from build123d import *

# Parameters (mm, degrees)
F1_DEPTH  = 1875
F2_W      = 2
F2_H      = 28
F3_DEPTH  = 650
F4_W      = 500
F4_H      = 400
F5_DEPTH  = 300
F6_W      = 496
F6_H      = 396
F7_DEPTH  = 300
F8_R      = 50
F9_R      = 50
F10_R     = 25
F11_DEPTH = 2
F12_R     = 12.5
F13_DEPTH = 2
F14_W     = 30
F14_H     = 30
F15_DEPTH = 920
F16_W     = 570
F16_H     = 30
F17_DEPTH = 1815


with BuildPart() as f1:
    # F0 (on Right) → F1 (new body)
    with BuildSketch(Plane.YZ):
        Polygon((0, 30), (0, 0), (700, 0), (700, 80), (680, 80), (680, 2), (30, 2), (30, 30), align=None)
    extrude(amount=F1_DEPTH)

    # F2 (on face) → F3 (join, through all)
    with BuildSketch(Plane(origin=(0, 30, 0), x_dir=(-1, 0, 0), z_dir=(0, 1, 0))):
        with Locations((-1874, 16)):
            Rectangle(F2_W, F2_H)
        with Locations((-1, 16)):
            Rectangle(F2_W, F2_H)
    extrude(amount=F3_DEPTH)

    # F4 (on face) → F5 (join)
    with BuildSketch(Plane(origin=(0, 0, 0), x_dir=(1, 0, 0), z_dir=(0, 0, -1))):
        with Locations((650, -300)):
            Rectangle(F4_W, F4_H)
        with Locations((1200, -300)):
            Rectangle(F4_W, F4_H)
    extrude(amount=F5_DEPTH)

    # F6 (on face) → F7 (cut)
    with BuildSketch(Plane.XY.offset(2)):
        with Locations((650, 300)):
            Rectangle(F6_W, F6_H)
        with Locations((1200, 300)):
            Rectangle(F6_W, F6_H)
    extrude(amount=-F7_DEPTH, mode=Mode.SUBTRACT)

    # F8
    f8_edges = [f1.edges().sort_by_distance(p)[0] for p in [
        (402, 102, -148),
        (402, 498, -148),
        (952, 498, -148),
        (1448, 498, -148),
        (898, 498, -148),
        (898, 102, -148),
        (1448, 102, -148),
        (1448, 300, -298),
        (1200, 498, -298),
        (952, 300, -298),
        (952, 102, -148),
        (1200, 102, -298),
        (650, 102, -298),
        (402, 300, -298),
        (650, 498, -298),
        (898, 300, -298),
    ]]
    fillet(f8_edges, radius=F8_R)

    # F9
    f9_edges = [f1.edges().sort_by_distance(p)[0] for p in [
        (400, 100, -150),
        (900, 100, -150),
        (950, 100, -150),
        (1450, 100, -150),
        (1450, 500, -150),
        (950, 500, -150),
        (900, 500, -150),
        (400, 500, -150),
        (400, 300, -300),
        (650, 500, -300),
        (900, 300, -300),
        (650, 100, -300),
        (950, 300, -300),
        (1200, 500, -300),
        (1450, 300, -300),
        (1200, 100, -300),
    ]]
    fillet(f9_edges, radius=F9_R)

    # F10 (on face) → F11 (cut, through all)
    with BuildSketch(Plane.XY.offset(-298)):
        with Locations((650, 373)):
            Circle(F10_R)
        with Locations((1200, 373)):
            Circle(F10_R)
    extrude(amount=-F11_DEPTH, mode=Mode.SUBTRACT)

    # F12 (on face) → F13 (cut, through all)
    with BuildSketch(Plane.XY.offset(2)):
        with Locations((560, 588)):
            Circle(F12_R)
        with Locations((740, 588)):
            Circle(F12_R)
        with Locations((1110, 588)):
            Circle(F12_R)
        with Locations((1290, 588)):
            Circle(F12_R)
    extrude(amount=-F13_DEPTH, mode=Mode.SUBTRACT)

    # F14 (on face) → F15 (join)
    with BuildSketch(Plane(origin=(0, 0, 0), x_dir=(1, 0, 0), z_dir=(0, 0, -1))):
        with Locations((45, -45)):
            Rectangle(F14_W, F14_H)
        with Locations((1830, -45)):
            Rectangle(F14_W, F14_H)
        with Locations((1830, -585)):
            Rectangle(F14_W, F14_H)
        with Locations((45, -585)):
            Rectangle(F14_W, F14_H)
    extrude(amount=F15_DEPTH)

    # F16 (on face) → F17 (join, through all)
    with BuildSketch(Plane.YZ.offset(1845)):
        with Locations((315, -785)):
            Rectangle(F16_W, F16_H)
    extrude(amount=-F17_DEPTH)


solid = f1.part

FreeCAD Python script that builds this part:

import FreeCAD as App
import Part
import Sketcher

V = App.Vector


def edges_at(feature, points):
    """Names of the edges that pass closest to the given points."""
    edges = feature.Shape.Edges
    near = lambda p: min(range(len(edges)), key=lambda i: edges[i].distToShape(Part.Vertex(*p))[0])
    return sorted({f"Edge{near(p) + 1}" for p in points})

doc = App.newDocument("Part")
body = doc.addObject("PartDesign::Body", "Body")

sketch1 = body.newObject("Sketcher::SketchObject", "Sketch")
sketch1.AttachmentSupport = (doc.getObject("YZ_Plane"), [""])
sketch1.MapMode = "FlatFace"
sketch1.addGeometry([
    Part.LineSegment(V(0, 30, 0), V(0, 0, 0)),
    Part.LineSegment(V(0, 0, 0), V(700, 0, 0)),
    Part.LineSegment(V(700, 0, 0), V(700, 80, 0)),
    Part.LineSegment(V(700, 80, 0), V(680, 80, 0)),
    Part.LineSegment(V(680, 80, 0), V(680, 2, 0)),
    Part.LineSegment(V(680, 2, 0), V(30, 2, 0)),
    Part.LineSegment(V(30, 2, 0), V(30, 30, 0)),
    Part.LineSegment(V(30, 30, 0), V(0, 30, 0)),
], False)
sketch1.addConstraint([
    Sketcher.Constraint("Coincident", 0, 2, 1, 1),
    Sketcher.Constraint("Coincident", 1, 2, 2, 1),
    Sketcher.Constraint("Coincident", 2, 2, 3, 1),
    Sketcher.Constraint("Coincident", 3, 2, 4, 1),
    Sketcher.Constraint("Coincident", 4, 2, 5, 1),
    Sketcher.Constraint("Coincident", 5, 2, 6, 1),
    Sketcher.Constraint("Coincident", 6, 2, 7, 1),
    Sketcher.Constraint("Coincident", 7, 2, 0, 1),
    Sketcher.Constraint("Vertical", 0),
    Sketcher.Constraint("Horizontal", 1),
    Sketcher.Constraint("Vertical", 2),
    Sketcher.Constraint("Horizontal", 3),
    Sketcher.Constraint("Vertical", 4),
    Sketcher.Constraint("Horizontal", 5),
    Sketcher.Constraint("Vertical", 6),
    Sketcher.Constraint("Horizontal", 7),
    Sketcher.Constraint("Coincident", 0, 2, -1, 1),
    Sketcher.Constraint("Equal", 7, 0),
    Sketcher.Constraint("DistanceX", 1, 1, 1, 2, 700.0),
    Sketcher.Constraint("DistanceX", 3, 2, 3, 1, 20.0),
    Sketcher.Constraint("DistanceX", 5, 2, 5, 1, 650.0),
    Sketcher.Constraint("DistanceY", 2, 1, 2, 2, 80.0),
    Sketcher.Constraint("DistanceY", 4, 2, 4, 1, 78.0),
])
pad1 = body.newObject("PartDesign::Pad", "Pad")
pad1.Profile = sketch1
pad1.Length = 1875

sketch2 = body.newObject("Sketcher::SketchObject", "Sketch001")
sketch2.AttachmentSupport = (doc.getObject("XZ_Plane"), [""])
sketch2.MapMode = "FlatFace"
sketch2.AttachmentOffset = App.Placement(V(0, 0, -30), App.Rotation())
sketch2.addGeometry([
    Part.LineSegment(V(1875, 30, 0), V(1875, 2, 0)),
    Part.LineSegment(V(1875, 2, 0), V(1873, 2, 0)),
    Part.LineSegment(V(1873, 2, 0), V(1873, 30, 0)),
    Part.LineSegment(V(1873, 30, 0), V(1875, 30, 0)),
    Part.LineSegment(V(2, 30, 0), V(2, 2, 0)),
    Part.LineSegment(V(2, 2, 0), V(0, 2, 0)),
    Part.LineSegment(V(0, 2, 0), V(0, 30, 0)),
    Part.LineSegment(V(0, 30, 0), V(2, 30, 0)),
], False)
sketch2.addConstraint([
    Sketcher.Constraint("Coincident", 0, 2, 1, 1),
    Sketcher.Constraint("Coincident", 1, 2, 2, 1),
    Sketcher.Constraint("Coincident", 2, 2, 3, 1),
    Sketcher.Constraint("Coincident", 3, 2, 0, 1),
    Sketcher.Constraint("Coincident", 4, 2, 5, 1),
    Sketcher.Constraint("Coincident", 5, 2, 6, 1),
    Sketcher.Constraint("Coincident", 6, 2, 7, 1),
    Sketcher.Constraint("Coincident", 7, 2, 4, 1),
    Sketcher.Constraint("Vertical", 0),
    Sketcher.Constraint("Horizontal", 1),
    Sketcher.Constraint("Vertical", 2),
    Sketcher.Constraint("Horizontal", 3),
    Sketcher.Constraint("Vertical", 4),
    Sketcher.Constraint("Horizontal", 5),
    Sketcher.Constraint("Vertical", 6),
    Sketcher.Constraint("Horizontal", 7),
    Sketcher.Constraint("PointOnObject", 5, 2, -2),
    Sketcher.Constraint("Horizontal", 1, 2, 4, 2),
    Sketcher.Constraint("Horizontal", 3, 2, 6, 2),
    Sketcher.Constraint("Equal", 3, 5),
    Sketcher.Constraint("DistanceX", 1, 2, 1, 1, 2.0),
    Sketcher.Constraint("DistanceY", 0, 2, 0, 1, 28.0),
    Sketcher.Constraint("DistanceX", -1, 1, 0, 2, 1875.0),
    Sketcher.Constraint("DistanceY", -1, 1, 0, 2, 2.0),
])
pad2 = body.newObject("PartDesign::Pad", "Pad001")
pad2.Profile = sketch2
pad2.Type = "UpToLast"
pad2.Reversed = True

sketch3 = body.newObject("Sketcher::SketchObject", "Sketch002")
sketch3.AttachmentSupport = (doc.getObject("XY_Plane"), [""])
sketch3.MapMode = "FlatFace"
sketch3.addGeometry([
    Part.LineSegment(V(400, 100, 0), V(400, 500, 0)),
    Part.LineSegment(V(400, 500, 0), V(900, 500, 0)),
    Part.LineSegment(V(900, 500, 0), V(900, 100, 0)),
    Part.LineSegment(V(900, 100, 0), V(400, 100, 0)),
    Part.LineSegment(V(950, 100, 0), V(950, 500, 0)),
    Part.LineSegment(V(950, 500, 0), V(1450, 500, 0)),
    Part.LineSegment(V(1450, 500, 0), V(1450, 100, 0)),
    Part.LineSegment(V(1450, 100, 0), V(950, 100, 0)),
], False)
sketch3.addConstraint([
    Sketcher.Constraint("Coincident", 0, 2, 1, 1),
    Sketcher.Constraint("Coincident", 1, 2, 2, 1),
    Sketcher.Constraint("Coincident", 2, 2, 3, 1),
    Sketcher.Constraint("Coincident", 3, 2, 0, 1),
    Sketcher.Constraint("Coincident", 4, 2, 5, 1),
    Sketcher.Constraint("Coincident", 5, 2, 6, 1),
    Sketcher.Constraint("Coincident", 6, 2, 7, 1),
    Sketcher.Constraint("Coincident", 7, 2, 4, 1),
    Sketcher.Constraint("Vertical", 0),
    Sketcher.Constraint("Horizontal", 1),
    Sketcher.Constraint("Vertical", 2),
    Sketcher.Constraint("Horizontal", 3),
    Sketcher.Constraint("Vertical", 4),
    Sketcher.Constraint("Horizontal", 5),
    Sketcher.Constraint("Vertical", 6),
    Sketcher.Constraint("Horizontal", 7),
    Sketcher.Constraint("Horizontal", 1, 2, 4, 2),
    Sketcher.Constraint("Horizontal", 3, 2, 6, 2),
    Sketcher.Constraint("Equal", 3, 5),
    Sketcher.Constraint("DistanceX", 1, 1, 1, 2, 500.0),
    Sketcher.Constraint("DistanceY", 0, 1, 0, 2, 400.0),
    Sketcher.Constraint("DistanceX", -1, 1, 0, 2, 400.0),
    Sketcher.Constraint("DistanceY", -1, 1, 0, 2, 500.0),
    Sketcher.Constraint("DistanceX", -1, 1, 4, 2, 950.0),
])
pad3 = body.newObject("PartDesign::Pad", "Pad002")
pad3.Profile = sketch3
pad3.Length = 300
pad3.Reversed = True

sketch4 = body.newObject("Sketcher::SketchObject", "Sketch003")
sketch4.AttachmentSupport = (doc.getObject("XY_Plane"), [""])
sketch4.MapMode = "FlatFace"
sketch4.AttachmentOffset = App.Placement(V(0, 0, 2), App.Rotation())
sketch4.addGeometry([
    Part.LineSegment(V(402, 498, 0), V(402, 102, 0)),
    Part.LineSegment(V(402, 102, 0), V(898, 102, 0)),
    Part.LineSegment(V(898, 102, 0), V(898, 498, 0)),
    Part.LineSegment(V(898, 498, 0), V(402, 498, 0)),
    Part.LineSegment(V(952, 498, 0), V(952, 102, 0)),
    Part.LineSegment(V(952, 102, 0), V(1448, 102, 0)),
    Part.LineSegment(V(1448, 102, 0), V(1448, 498, 0)),
    Part.LineSegment(V(1448, 498, 0), V(952, 498, 0)),
], False)
sketch4.addConstraint([
    Sketcher.Constraint("Coincident", 0, 2, 1, 1),
    Sketcher.Constraint("Coincident", 1, 2, 2, 1),
    Sketcher.Constraint("Coincident", 2, 2, 3, 1),
    Sketcher.Constraint("Coincident", 3, 2, 0, 1),
    Sketcher.Constraint("Coincident", 4, 2, 5, 1),
    Sketcher.Constraint("Coincident", 5, 2, 6, 1),
    Sketcher.Constraint("Coincident", 6, 2, 7, 1),
    Sketcher.Constraint("Coincident", 7, 2, 4, 1),
    Sketcher.Constraint("Vertical", 0),
    Sketcher.Constraint("Horizontal", 1),
    Sketcher.Constraint("Vertical", 2),
    Sketcher.Constraint("Horizontal", 3),
    Sketcher.Constraint("Vertical", 4),
    Sketcher.Constraint("Horizontal", 5),
    Sketcher.Constraint("Vertical", 6),
    Sketcher.Constraint("Horizontal", 7),
    Sketcher.Constraint("Horizontal", 1, 2, 4, 2),
    Sketcher.Constraint("Horizontal", 3, 2, 6, 2),
    Sketcher.Constraint("Equal", 3, 5),
    Sketcher.Constraint("DistanceX", 1, 1, 1, 2, 496.0),
    Sketcher.Constraint("DistanceY", 0, 2, 0, 1, 396.0),
    Sketcher.Constraint("DistanceX", -1, 1, 0, 2, 402.0),
    Sketcher.Constraint("DistanceY", -1, 1, 0, 2, 102.0),
    Sketcher.Constraint("DistanceX", -1, 1, 4, 2, 952.0),
])
pocket1 = body.newObject("PartDesign::Pocket", "Pocket")
pocket1.Profile = sketch4
pocket1.Length = 300
doc.recompute()

fillet = body.newObject("PartDesign::Fillet", "Fillet")
fillet.Base = (pocket1, edges_at(pocket1, [
    (402, 102, -148),
    (402, 498, -148),
    (952, 498, -148),
    (1448, 498, -148),
    (898, 498, -148),
    (898, 102, -148),
    (1448, 102, -148),
    (1448, 300, -298),
    (1200, 498, -298),
    (952, 300, -298),
    (952, 102, -148),
    (1200, 102, -298),
    (650, 102, -298),
    (402, 300, -298),
    (650, 498, -298),
    (898, 300, -298),
]))
fillet.Radius = 50
doc.recompute()

fillet2 = body.newObject("PartDesign::Fillet", "Fillet001")
fillet2.Base = (fillet, edges_at(fillet, [
    (400, 100, -150),
    (900, 100, -150),
    (950, 100, -150),
    (1450, 100, -150),
    (1450, 500, -150),
    (950, 500, -150),
    (900, 500, -150),
    (400, 500, -150),
    (400, 300, -300),
    (650, 500, -300),
    (900, 300, -300),
    (650, 100, -300),
    (950, 300, -300),
    (1200, 500, -300),
    (1450, 300, -300),
    (1200, 100, -300),
]))
fillet2.Radius = 50

sketch5 = body.newObject("Sketcher::SketchObject", "Sketch004")
sketch5.AttachmentSupport = (doc.getObject("XY_Plane"), [""])
sketch5.MapMode = "FlatFace"
sketch5.AttachmentOffset = App.Placement(V(0, 0, -298), App.Rotation())
sketch5.addGeometry([
    Part.Circle(V(650, 373, 0), V(0, 0, 1), 25),
    Part.Circle(V(1200, 373, 0), V(0, 0, 1), 25),
], False)
sketch5.addConstraint([
    Sketcher.Constraint("Equal", 0, 1),
    Sketcher.Constraint("Horizontal", 0, 3, 1, 3),
    Sketcher.Constraint("Diameter", 0, 50.0),
    Sketcher.Constraint("DistanceX", -1, 1, 0, 3, 650.0),
    Sketcher.Constraint("DistanceY", -1, 1, 0, 3, 373.0),
    Sketcher.Constraint("DistanceX", -1, 1, 1, 3, 1200.0),
])
pocket2 = body.newObject("PartDesign::Pocket", "Pocket001")
pocket2.Profile = sketch5
pocket2.Type = "ThroughAll"

sketch6 = body.newObject("Sketcher::SketchObject", "Sketch005")
sketch6.AttachmentSupport = (doc.getObject("XY_Plane"), [""])
sketch6.MapMode = "FlatFace"
sketch6.AttachmentOffset = App.Placement(V(0, 0, 2), App.Rotation())
sketch6.addGeometry([
    Part.Circle(V(560, 588, 0), V(0, 0, 1), 12.5),
    Part.Circle(V(740, 588, 0), V(0, 0, 1), 12.5),
    Part.Circle(V(1110, 588, 0), V(0, 0, 1), 12.5),
    Part.Circle(V(1290, 588, 0), V(0, 0, 1), 12.5),
], False)
sketch6.addConstraint([
    Sketcher.Constraint("Equal", 0, 1),
    Sketcher.Constraint("Equal", 1, 2),
    Sketcher.Constraint("Equal", 2, 3),
    Sketcher.Constraint("Horizontal", 0, 3, 1, 3),
    Sketcher.Constraint("Horizontal", 1, 3, 2, 3),
    Sketcher.Constraint("Horizontal", 2, 3, 3, 3),
    Sketcher.Constraint("Diameter", 0, 25.0),
    Sketcher.Constraint("DistanceX", -1, 1, 0, 3, 560.0),
    Sketcher.Constraint("DistanceY", -1, 1, 0, 3, 588.0),
    Sketcher.Constraint("DistanceX", -1, 1, 1, 3, 740.0),
    Sketcher.Constraint("DistanceX", -1, 1, 2, 3, 1110.0),
    Sketcher.Constraint("DistanceX", -1, 1, 3, 3, 1290.0),
])
pocket3 = body.newObject("PartDesign::Pocket", "Pocket002")
pocket3.Profile = sketch6
pocket3.Type = "ThroughAll"

sketch7 = body.newObject("Sketcher::SketchObject", "Sketch006")
sketch7.AttachmentSupport = (doc.getObject("XY_Plane"), [""])
sketch7.MapMode = "FlatFace"
sketch7.addGeometry([
    Part.LineSegment(V(30, 30, 0), V(30, 60, 0)),
    Part.LineSegment(V(30, 60, 0), V(60, 60, 0)),
    Part.LineSegment(V(60, 60, 0), V(60, 30, 0)),
    Part.LineSegment(V(60, 30, 0), V(30, 30, 0)),
    Part.LineSegment(V(1815, 30, 0), V(1815, 60, 0)),
    Part.LineSegment(V(1815, 60, 0), V(1845, 60, 0)),
    Part.LineSegment(V(1845, 60, 0), V(1845, 30, 0)),
    Part.LineSegment(V(1845, 30, 0), V(1815, 30, 0)),
    Part.LineSegment(V(1815, 570, 0), V(1815, 600, 0)),
    Part.LineSegment(V(1815, 600, 0), V(1845, 600, 0)),
    Part.LineSegment(V(1845, 600, 0), V(1845, 570, 0)),
    Part.LineSegment(V(1845, 570, 0), V(1815, 570, 0)),
    Part.LineSegment(V(30, 570, 0), V(30, 600, 0)),
    Part.LineSegment(V(30, 600, 0), V(60, 600, 0)),
    Part.LineSegment(V(60, 600, 0), V(60, 570, 0)),
    Part.LineSegment(V(60, 570, 0), V(30, 570, 0)),
], False)
sketch7.addConstraint([
    Sketcher.Constraint("Coincident", 0, 2, 1, 1),
    Sketcher.Constraint("Coincident", 1, 2, 2, 1),
    Sketcher.Constraint("Coincident", 2, 2, 3, 1),
    Sketcher.Constraint("Coincident", 3, 2, 0, 1),
    Sketcher.Constraint("Coincident", 4, 2, 5, 1),
    Sketcher.Constraint("Coincident", 5, 2, 6, 1),
    Sketcher.Constraint("Coincident", 6, 2, 7, 1),
    Sketcher.Constraint("Coincident", 7, 2, 4, 1),
    Sketcher.Constraint("Coincident", 8, 2, 9, 1),
    Sketcher.Constraint("Coincident", 9, 2, 10, 1),
    Sketcher.Constraint("Coincident", 10, 2, 11, 1),
    Sketcher.Constraint("Coincident", 11, 2, 8, 1),
    Sketcher.Constraint("Coincident", 12, 2, 13, 1),
    Sketcher.Constraint("Coincident", 13, 2, 14, 1),
    Sketcher.Constraint("Coincident", 14, 2, 15, 1),
    Sketcher.Constraint("Coincident", 15, 2, 12, 1),
    Sketcher.Constraint("Vertical", 0),
    Sketcher.Constraint("Horizontal", 1),
    Sketcher.Constraint("Vertical", 2),
    Sketcher.Constraint("Horizontal", 3),
    Sketcher.Constraint("Vertical", 4),
    Sketcher.Constraint("Horizontal", 5),
    Sketcher.Constraint("Vertical", 6),
    Sketcher.Constraint("Horizontal", 7),
    Sketcher.Constraint("Vertical", 8),
    Sketcher.Constraint("Horizontal", 9),
    Sketcher.Constraint("Vertical", 10),
    Sketcher.Constraint("Horizontal", 11),
    Sketcher.Constraint("Vertical", 12),
    Sketcher.Constraint("Horizontal", 13),
    Sketcher.Constraint("Vertical", 14),
    Sketcher.Constraint("Horizontal", 15),
    Sketcher.Constraint("Horizontal", 1, 2, 4, 2),
    Sketcher.Constraint("Horizontal", 3, 2, 6, 2),
    Sketcher.Constraint("Horizontal", 9, 2, 12, 2),
    Sketcher.Constraint("Horizontal", 11, 2, 14, 2),
    Sketcher.Constraint("Vertical", 7, 2, 8, 2),
    Sketcher.Constraint("Vertical", 6, 2, 9, 2),
    Sketcher.Constraint("Vertical", 3, 2, 12, 2),
    Sketcher.Constraint("Vertical", 2, 2, 13, 2),
    Sketcher.Constraint("Equal", 3, 5),
    Sketcher.Constraint("Equal", 15, 0),
    Sketcher.Constraint("Equal", 6, 8),
    Sketcher.Constraint("DistanceX", 1, 1, 1, 2, 30.0),
    Sketcher.Constraint("DistanceX", -1, 1, 0, 2, 30.0),
    Sketcher.Constraint("DistanceY", -1, 1, 0, 2, 60.0),
    Sketcher.Constraint("DistanceX", -1, 1, 4, 2, 1815.0),
    Sketcher.Constraint("DistanceY", -1, 1, 8, 2, 600.0),
])
pad4 = body.newObject("PartDesign::Pad", "Pad003")
pad4.Profile = sketch7
pad4.Length = 920
pad4.Reversed = True

sketch8 = body.newObject("Sketcher::SketchObject", "Sketch007")
sketch8.AttachmentSupport = (doc.getObject("YZ_Plane"), [""])
sketch8.MapMode = "FlatFace"
sketch8.AttachmentOffset = App.Placement(V(0, 0, 1845), App.Rotation())
sketch8.addGeometry([
    Part.LineSegment(V(30, -770, 0), V(30, -800, 0)),
    Part.LineSegment(V(30, -800, 0), V(600, -800, 0)),
    Part.LineSegment(V(600, -800, 0), V(600, -770, 0)),
    Part.LineSegment(V(600, -770, 0), V(30, -770, 0)),
], False)
sketch8.addConstraint([
    Sketcher.Constraint("Coincident", 0, 2, 1, 1),
    Sketcher.Constraint("Coincident", 1, 2, 2, 1),
    Sketcher.Constraint("Coincident", 2, 2, 3, 1),
    Sketcher.Constraint("Coincident", 3, 2, 0, 1),
    Sketcher.Constraint("Vertical", 0),
    Sketcher.Constraint("Horizontal", 1),
    Sketcher.Constraint("Vertical", 2),
    Sketcher.Constraint("Horizontal", 3),
    Sketcher.Constraint("DistanceX", 1, 1, 1, 2, 570.0),
    Sketcher.Constraint("DistanceY", 0, 2, 0, 1, 30.0),
    Sketcher.Constraint("DistanceX", -1, 1, 0, 2, 30.0),
    Sketcher.Constraint("DistanceY", 0, 2, -1, 1, 800.0),
])
pad5 = body.newObject("PartDesign::Pad", "Pad004")
pad5.Profile = sketch8
pad5.Length = 1815
pad5.Reversed = True

doc.recompute()
